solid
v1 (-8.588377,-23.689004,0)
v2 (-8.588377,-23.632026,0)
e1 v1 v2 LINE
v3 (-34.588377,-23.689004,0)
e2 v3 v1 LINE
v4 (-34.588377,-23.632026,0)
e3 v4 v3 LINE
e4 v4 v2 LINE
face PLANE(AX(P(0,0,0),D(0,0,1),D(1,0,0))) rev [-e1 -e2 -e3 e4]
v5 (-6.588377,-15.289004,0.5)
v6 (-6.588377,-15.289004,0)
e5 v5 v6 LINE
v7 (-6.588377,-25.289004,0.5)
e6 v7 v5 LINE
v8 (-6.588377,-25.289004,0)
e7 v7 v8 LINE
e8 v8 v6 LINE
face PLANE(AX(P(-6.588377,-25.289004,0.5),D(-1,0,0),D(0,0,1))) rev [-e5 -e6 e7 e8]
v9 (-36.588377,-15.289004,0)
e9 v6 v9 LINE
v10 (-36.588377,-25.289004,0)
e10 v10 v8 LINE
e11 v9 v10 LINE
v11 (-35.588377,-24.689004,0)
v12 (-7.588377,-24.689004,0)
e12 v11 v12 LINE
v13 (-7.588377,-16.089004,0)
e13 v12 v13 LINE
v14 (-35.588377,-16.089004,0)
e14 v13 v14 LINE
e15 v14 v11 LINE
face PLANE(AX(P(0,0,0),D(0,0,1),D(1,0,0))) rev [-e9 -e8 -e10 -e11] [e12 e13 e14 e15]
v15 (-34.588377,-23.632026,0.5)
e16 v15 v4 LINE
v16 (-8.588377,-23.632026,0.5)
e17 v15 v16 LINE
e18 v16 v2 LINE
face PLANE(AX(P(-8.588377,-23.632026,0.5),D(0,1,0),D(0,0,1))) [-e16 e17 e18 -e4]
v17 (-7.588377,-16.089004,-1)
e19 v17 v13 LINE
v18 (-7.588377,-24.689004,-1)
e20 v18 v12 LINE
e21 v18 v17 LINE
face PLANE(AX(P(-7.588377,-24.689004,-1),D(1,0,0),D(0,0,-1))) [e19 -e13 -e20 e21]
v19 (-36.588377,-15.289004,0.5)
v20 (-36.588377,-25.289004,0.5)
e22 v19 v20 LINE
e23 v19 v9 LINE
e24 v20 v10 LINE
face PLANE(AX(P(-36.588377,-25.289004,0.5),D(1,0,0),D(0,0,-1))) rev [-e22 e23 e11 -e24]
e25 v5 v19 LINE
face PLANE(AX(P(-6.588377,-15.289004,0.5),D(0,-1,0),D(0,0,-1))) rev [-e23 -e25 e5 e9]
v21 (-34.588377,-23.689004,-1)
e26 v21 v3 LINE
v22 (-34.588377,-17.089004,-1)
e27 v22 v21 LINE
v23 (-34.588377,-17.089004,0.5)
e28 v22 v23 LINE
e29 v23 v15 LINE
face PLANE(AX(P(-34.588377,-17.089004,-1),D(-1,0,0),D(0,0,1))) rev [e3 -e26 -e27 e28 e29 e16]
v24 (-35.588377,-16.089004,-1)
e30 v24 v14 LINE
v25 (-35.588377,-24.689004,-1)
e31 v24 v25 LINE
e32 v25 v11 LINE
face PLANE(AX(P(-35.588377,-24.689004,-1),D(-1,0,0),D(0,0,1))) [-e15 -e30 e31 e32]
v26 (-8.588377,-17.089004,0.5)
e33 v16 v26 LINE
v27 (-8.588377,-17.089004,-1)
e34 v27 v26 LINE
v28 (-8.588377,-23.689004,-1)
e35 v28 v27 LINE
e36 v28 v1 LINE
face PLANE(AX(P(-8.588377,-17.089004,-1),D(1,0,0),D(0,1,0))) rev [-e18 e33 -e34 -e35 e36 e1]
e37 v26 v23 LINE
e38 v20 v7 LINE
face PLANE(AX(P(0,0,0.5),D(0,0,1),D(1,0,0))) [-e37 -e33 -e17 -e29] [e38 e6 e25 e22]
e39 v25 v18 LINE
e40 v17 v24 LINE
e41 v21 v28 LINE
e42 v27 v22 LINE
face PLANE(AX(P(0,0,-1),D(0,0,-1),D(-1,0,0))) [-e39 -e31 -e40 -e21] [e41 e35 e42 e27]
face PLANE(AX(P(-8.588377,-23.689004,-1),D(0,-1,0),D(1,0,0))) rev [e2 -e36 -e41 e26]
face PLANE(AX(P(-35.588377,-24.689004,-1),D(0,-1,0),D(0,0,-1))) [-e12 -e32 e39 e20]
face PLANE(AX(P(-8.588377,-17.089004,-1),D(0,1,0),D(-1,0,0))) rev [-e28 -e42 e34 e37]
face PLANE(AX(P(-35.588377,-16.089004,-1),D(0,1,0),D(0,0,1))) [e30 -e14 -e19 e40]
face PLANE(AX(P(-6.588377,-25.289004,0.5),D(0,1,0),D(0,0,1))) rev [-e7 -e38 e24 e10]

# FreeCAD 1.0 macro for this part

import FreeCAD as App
import Part
import Sketcher

V = App.Vector
Q = App.Units.Quantity


def add_polygon(sketch, points):
    """Adds a closed chain of lines whose ends are joined by coincident constraints."""
    first, n = sketch.GeometryCount, len(points)
    for a, b in zip(points, points[1:] + points[:1]):
        sketch.addGeometry(Part.LineSegment(App.Vector(*a, 0), App.Vector(*b, 0)), False)
    for i in range(n):
        sketch.addConstraint(Sketcher.Constraint("Coincident", first + i, 2, first + (i + 1) % n, 1))

doc = App.newDocument("Part")
body = doc.addObject("PartDesign::Body", "Body")

sketch1 = doc.addObject("Sketcher::SketchObject", "Sketch")
body.addObject(sketch1)
sketch1.AttachmentSupport = (doc.XY_Plane, [""])
sketch1.MapMode = "FlatFace"
add_polygon(sketch1, [(-36, -16), (-36, -25), (-8, -25), (-8, -16)])
add_polygon(sketch1, [(-9, -24), (-35, -24), (-35, -17), (-9, -17)])
sketch1.addConstraint([
    Sketcher.Constraint("Vertical", 0),
    Sketcher.Constraint("Horizontal", 1),
    Sketcher.Constraint("Vertical", 2),
    Sketcher.Constraint("Horizontal", 3),
    Sketcher.Constraint("Horizontal", 4),
    Sketcher.Constraint("Vertical", 5),
    Sketcher.Constraint("Horizontal", 6),
    Sketcher.Constraint("Vertical", 7),
    Sketcher.Constraint("DistanceX", 1, 1, 1, 2, Q("28 mm")),
    Sketcher.Constraint("DistanceX", 4, 2, 4, 1, Q("26 mm")),
    Sketcher.Constraint("DistanceY", 0, 2, 0, 1, Q("8.6 mm")),
    Sketcher.Constraint("DistanceY", 5, 1, 5, 2, Q("6.6 mm")),
    Sketcher.Constraint("DistanceX", 0, 2, 4, 2, Q("1 mm")),
    Sketcher.Constraint("DistanceY", 0, 2, 4, 2, Q("1 mm")),
    Sketcher.Constraint("DistanceX", 0, 2, -1, 1, Q("35.588377 mm")),
    Sketcher.Constraint("DistanceY", 0, 2, -1, 1, Q("24.689004 mm")),
])
pad1 = doc.addObject("PartDesign::Pad", "Pad")
body.addObject(pad1)
pad1.Profile = sketch1
pad1.Length = 1
pad1.Reversed = True

sketch2 = doc.addObject("Sketcher::SketchObject", "Sketch001")
body.addObject(sketch2)
sketch2.AttachmentSupport = (doc.XY_Plane, [""])
sketch2.MapMode = "FlatFace"
add_polygon(sketch2, [(-37, -15), (-37, -25), (-7, -25), (-7, -15)])
add_polygon(sketch2, [(-9, -24), (-35, -24), (-35, -17), (-9, -17)])
sketch2.addConstraint([
    Sketcher.Constraint("Vertical", 0),
    Sketcher.Constraint("Horizontal", 1),
    Sketcher.Constraint("Vertical", 2),
    Sketcher.Constraint("Horizontal", 3),
    Sketcher.Constraint("Horizontal", 4),
    Sketcher.Constraint("Vertical", 5),
    Sketcher.Constraint("Horizontal", 6),
    Sketcher.Constraint("Vertical", 7),
    Sketcher.Constraint("DistanceX", 1, 1, 1, 2, Q("30 mm")),
    Sketcher.Constraint("DistanceX", 4, 2, 4, 1, Q("26 mm")),
    Sketcher.Constraint("DistanceY", 0, 2, 0, 1, Q("10 mm")),
    Sketcher.Constraint("DistanceX", 0, 2, 4, 2, Q("2 mm")),
    Sketcher.Constraint("DistanceY", 5, 2, 3, 2, Q("1.8 mm")),
    Sketcher.Constraint("DistanceY", 5, 1, 5, 2, Q("6.543022 mm")),
    Sketcher.Constraint("DistanceX", 0, 2, -1, 1, Q("36.588377 mm")),
    Sketcher.Constraint("DistanceY", 0, 2, -1, 1, Q("25.289004 mm")),
])
pad2 = doc.addObject("PartDesign::Pad", "Pad001")
body.addObject(pad2)
pad2.Profile = sketch2
pad2.Length = 0.5

doc.recompute()
